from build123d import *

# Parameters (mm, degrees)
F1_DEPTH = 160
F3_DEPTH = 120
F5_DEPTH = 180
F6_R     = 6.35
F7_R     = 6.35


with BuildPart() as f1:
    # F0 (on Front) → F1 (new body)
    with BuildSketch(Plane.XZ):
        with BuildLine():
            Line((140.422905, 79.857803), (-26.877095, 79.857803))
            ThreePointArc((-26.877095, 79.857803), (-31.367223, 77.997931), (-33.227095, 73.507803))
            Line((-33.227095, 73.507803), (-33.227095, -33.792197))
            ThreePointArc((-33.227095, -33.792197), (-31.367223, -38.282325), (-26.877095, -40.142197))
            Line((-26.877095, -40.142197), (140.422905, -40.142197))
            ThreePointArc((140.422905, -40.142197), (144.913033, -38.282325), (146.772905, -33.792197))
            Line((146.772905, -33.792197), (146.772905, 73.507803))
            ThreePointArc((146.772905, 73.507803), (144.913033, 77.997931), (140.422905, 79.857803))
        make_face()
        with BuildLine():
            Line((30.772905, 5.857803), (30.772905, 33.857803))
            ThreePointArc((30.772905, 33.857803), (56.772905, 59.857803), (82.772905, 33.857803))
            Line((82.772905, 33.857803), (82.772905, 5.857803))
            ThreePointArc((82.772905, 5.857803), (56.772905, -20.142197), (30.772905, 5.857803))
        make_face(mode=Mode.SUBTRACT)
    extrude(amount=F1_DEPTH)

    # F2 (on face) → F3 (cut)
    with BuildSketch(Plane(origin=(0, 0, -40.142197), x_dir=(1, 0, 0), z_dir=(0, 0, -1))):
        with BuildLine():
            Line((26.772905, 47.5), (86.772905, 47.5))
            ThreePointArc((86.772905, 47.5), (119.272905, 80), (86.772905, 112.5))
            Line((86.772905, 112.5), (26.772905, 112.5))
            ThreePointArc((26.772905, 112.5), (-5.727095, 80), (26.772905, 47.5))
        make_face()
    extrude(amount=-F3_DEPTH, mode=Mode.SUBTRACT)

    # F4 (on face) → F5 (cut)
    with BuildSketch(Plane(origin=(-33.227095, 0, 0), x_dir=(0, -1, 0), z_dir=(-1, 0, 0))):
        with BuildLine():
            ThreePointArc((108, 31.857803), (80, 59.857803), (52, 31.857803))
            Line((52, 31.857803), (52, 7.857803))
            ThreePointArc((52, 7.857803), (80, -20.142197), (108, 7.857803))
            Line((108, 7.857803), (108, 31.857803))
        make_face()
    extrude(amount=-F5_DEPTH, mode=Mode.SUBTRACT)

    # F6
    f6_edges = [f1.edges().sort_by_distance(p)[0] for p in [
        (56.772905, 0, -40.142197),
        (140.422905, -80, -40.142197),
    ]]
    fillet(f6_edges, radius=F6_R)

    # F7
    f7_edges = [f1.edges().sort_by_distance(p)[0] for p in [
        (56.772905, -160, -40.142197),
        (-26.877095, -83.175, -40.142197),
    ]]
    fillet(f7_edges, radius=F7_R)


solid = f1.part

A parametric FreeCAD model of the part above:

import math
import FreeCAD as App
import Part
import Sketcher
from FreeCAD import Vector


def edges_at(feature, points):
    """Names of the edges that pass closest to the given points."""
    edges = feature.Shape.Edges
    near = lambda p: min(range(len(edges)), key=lambda i: edges[i].distToShape(Part.Vertex(*p))[0])
    return sorted({f"Edge{near(p) + 1}" for p in points})

doc = App.newDocument("Part")
body = doc.addObject("PartDesign::Body", "Body")

# Sketch on XZ plane
sketch1 = body.newObject("Sketcher::SketchObject", "Sketch")
sketch1.AttachmentSupport = (doc.getObject("XZ_Plane"), [""])
sketch1.MapMode = "FlatFace"
sketch1.addGeometry([
    Part.LineSegment(Vector(140, 80, 0), Vector(-27, 80, 0)),  # 0
    Part.ArcOfCircle(Part.Circle(Vector(-27, 74, 0), Vector(0, 0, 1), 6), math.radians(90), math.radians(180)),  # 1
    Part.LineSegment(Vector(-33, 74, 0), Vector(-33, -34, 0)),  # 2
    Part.ArcOfCircle(Part.Circle(Vector(-27, -34, 0), Vector(0, 0, 1), 6), math.radians(-180), math.radians(-90)),  # 3
    Part.LineSegment(Vector(-27, -40, 0), Vector(140, -40, 0)),  # 4
    Part.ArcOfCircle(Part.Circle(Vector(140, -34, 0), Vector(0, 0, 1), 6), math.radians(-90), math.radians(0)),  # 5
    Part.LineSegment(Vector(147, -34, 0), Vector(147, 74, 0)),  # 6
    Part.ArcOfCircle(Part.Circle(Vector(140, 74, 0), Vector(0, 0, 1), 6), math.radians(0), math.radians(90)),  # 7
    Part.ArcOfCircle(Part.Circle(Vector(57, 6, 0), Vector(0, 0, 1), 26), math.radians(180), math.radians(360)),  # 8
    Part.LineSegment(Vector(31, 6, 0), Vector(31, 34, 0)),  # 9
    Part.ArcOfCircle(Part.Circle(Vector(57, 34, 0), Vector(0, 0, 1), 26), math.radians(0), math.radians(180)),  # 10
    Part.LineSegment(Vector(83, 34, 0), Vector(83, 6, 0)),  # 11
], False)
sketch1.addConstraint([
    Sketcher.Constraint("Tangent", 0, 2, 1, 1),
    Sketcher.Constraint("Tangent", 1, 2, 2, 1),
    Sketcher.Constraint("Tangent", 2, 2, 3, 1),
    Sketcher.Constraint("Tangent", 3, 2, 4, 1),
    Sketcher.Constraint("Tangent", 4, 2, 5, 1),
    Sketcher.Constraint("Tangent", 5, 2, 6, 1),
    Sketcher.Constraint("Tangent", 6, 2, 7, 1),
    Sketcher.Constraint("Tangent", 7, 2, 0, 1),
    Sketcher.Constraint("Tangent", 8, 1, 9, 1),
    Sketcher.Constraint("Tangent", 9, 2, 10, 2),
    Sketcher.Constraint("Tangent", 10, 1, 11, 1),
    Sketcher.Constraint("Tangent", 11, 2, 8, 2),
    Sketcher.Constraint("Horizontal", 0),
    Sketcher.Constraint("Vertical", 2),
    Sketcher.Constraint("Horizontal", 4),
    Sketcher.Constraint("Vertical", 6),
    Sketcher.Constraint("Vertical", 9),
    Sketcher.Constraint("Vertical", 11),
    Sketcher.Constraint("Equal", 1, 3),
    Sketcher.Constraint("Equal", 3, 5),
    Sketcher.Constraint("Equal", 5, 7),
    Sketcher.Constraint("Radius", 8, 26.0),
    Sketcher.Constraint("DistanceY", 9, 1, 9, 2, 28.0),
    Sketcher.Constraint("Radius", 1, 6.35),
    Sketcher.Constraint("DistanceX", 0, 2, 0, 1, 167.3),
    Sketcher.Constraint("DistanceY", 2, 2, 2, 1, 107.3),
    Sketcher.Constraint("DistanceY", 10, 3, 0, 2, 46.0),
    Sketcher.Constraint("DistanceX", 1, 2, 10, 3, 90.0),
    Sketcher.Constraint("DistanceX", 1, 3, -1, 1, 26.877095),
    Sketcher.Constraint("DistanceY", -1, 1, 1, 3, 73.507803),
])
pad1 = body.newObject("PartDesign::Pad", "Pad")
pad1.Profile = sketch1
pad1.Length = 160

# Sketch on XY plane
sketch2 = body.newObject("Sketcher::SketchObject", "Sketch001")
sketch2.AttachmentSupport = (doc.getObject("XY_Plane"), [""])
sketch2.MapMode = "FlatFace"
sketch2.AttachmentOffset = App.Placement(Vector(0, 0, -40.142197), App.Rotation())
sketch2.addGeometry([
    Part.LineSegment(Vector(27, -48, 0), Vector(87, -48, 0)),
    Part.ArcOfCircle(Part.Circle(Vector(87, -80, 0), Vector(0, 0, 1), 32), math.radians(-90), math.radians(90)),
    Part.LineSegment(Vector(87, -112, 0), Vector(27, -112, 0)),
    Part.ArcOfCircle(Part.Circle(Vector(27, -80, 0), Vector(0, 0, 1), 32), math.radians(90), math.radians(270)),
], False)
sketch2.addConstraint([
    Sketcher.Constraint("Tangent", 0, 2, 1, 2),
    Sketcher.Constraint("Tangent", 1, 1, 2, 1),
    Sketcher.Constraint("Tangent", 2, 2, 3, 2),
    Sketcher.Constraint("Tangent", 3, 1, 0, 1),
    Sketcher.Constraint("Horizontal", 0),
    Sketcher.Constraint("Horizontal", 2),
    Sketcher.Constraint("Radius", 1, 32.5),
    Sketcher.Constraint("DistanceX", 0, 1, 0, 2, 60.0),
    Sketcher.Constraint("DistanceY", 1, 3, -1, 1, 80.0),
    Sketcher.Constraint("DistanceX", -1, 1, 1, 3, 86.772905),
])
pocket1 = body.newObject("PartDesign::Pocket", "Pocket")
pocket1.Profile = sketch2
pocket1.Length = 120
pocket1.Reversed = True

# Sketch on YZ plane
sketch3 = body.newObject("Sketcher::SketchObject", "Sketch002")
sketch3.AttachmentSupport = (doc.getObject("YZ_Plane"), [""])
sketch3.MapMode = "FlatFace"
sketch3.AttachmentOffset = App.Placement(Vector(0, 0, -33.227095), App.Rotation())
sketch3.addGeometry([
    Part.ArcOfCircle(Part.Circle(Vector(-80, 32, 0), Vector(0, 0, 1), 28), math.radians(0), math.radians(180)),
    Part.LineSegment(Vector(-52, 32, 0), Vector(-52, 8, 0)),
    Part.ArcOfCircle(Part.Circle(Vector(-80, 8, 0), Vector(0, 0, 1), 28), math.radians(180), math.radians(360)),
    Part.LineSegment(Vector(-108, 8, 0), Vector(-108, 32, 0)),
], False)
sketch3.addConstraint([
    Sketcher.Constraint("Tangent", 0, 1, 1, 1),
    Sketcher.Constraint("Tangent", 1, 2, 2, 2),
    Sketcher.Constraint("Tangent", 2, 1, 3, 1),
    Sketcher.Constraint("Tangent", 3, 2, 0, 2),
    Sketcher.Constraint("Vertical", 1),
    Sketcher.Constraint("Vertical", 3),
    Sketcher.Constraint("Radius", 0, 28.0),
    Sketcher.Constraint("DistanceY", 1, 2, 1, 1, 24.0),
    Sketcher.Constraint("DistanceX", 0, 3, -1, 1, 80.0),
    Sketcher.Constraint("DistanceY", -1, 1, 0, 3, 31.857803),
])
pocket2 = body.newObject("PartDesign::Pocket", "Pocket001")
pocket2.Profile = sketch3
pocket2.Length = 180
pocket2.Reversed = True
doc.recompute()

fillet = body.newObject("PartDesign::Fillet", "Fillet")
fillet.Base = (pocket2, edges_at(pocket2, [(56.773, 0, -40.142), (140.423, -80, -40.142)]))
fillet.Radius = 6.35
doc.recompute()

fillet2 = body.newObject("PartDesign::Fillet", "Fillet001")
fillet2.Base = (fillet, edges_at(fillet, [(56.773, -160, -40.142), (-26.877, -83.175, -40.142)]))
fillet2.Radius = 6.35

doc.recompute()
